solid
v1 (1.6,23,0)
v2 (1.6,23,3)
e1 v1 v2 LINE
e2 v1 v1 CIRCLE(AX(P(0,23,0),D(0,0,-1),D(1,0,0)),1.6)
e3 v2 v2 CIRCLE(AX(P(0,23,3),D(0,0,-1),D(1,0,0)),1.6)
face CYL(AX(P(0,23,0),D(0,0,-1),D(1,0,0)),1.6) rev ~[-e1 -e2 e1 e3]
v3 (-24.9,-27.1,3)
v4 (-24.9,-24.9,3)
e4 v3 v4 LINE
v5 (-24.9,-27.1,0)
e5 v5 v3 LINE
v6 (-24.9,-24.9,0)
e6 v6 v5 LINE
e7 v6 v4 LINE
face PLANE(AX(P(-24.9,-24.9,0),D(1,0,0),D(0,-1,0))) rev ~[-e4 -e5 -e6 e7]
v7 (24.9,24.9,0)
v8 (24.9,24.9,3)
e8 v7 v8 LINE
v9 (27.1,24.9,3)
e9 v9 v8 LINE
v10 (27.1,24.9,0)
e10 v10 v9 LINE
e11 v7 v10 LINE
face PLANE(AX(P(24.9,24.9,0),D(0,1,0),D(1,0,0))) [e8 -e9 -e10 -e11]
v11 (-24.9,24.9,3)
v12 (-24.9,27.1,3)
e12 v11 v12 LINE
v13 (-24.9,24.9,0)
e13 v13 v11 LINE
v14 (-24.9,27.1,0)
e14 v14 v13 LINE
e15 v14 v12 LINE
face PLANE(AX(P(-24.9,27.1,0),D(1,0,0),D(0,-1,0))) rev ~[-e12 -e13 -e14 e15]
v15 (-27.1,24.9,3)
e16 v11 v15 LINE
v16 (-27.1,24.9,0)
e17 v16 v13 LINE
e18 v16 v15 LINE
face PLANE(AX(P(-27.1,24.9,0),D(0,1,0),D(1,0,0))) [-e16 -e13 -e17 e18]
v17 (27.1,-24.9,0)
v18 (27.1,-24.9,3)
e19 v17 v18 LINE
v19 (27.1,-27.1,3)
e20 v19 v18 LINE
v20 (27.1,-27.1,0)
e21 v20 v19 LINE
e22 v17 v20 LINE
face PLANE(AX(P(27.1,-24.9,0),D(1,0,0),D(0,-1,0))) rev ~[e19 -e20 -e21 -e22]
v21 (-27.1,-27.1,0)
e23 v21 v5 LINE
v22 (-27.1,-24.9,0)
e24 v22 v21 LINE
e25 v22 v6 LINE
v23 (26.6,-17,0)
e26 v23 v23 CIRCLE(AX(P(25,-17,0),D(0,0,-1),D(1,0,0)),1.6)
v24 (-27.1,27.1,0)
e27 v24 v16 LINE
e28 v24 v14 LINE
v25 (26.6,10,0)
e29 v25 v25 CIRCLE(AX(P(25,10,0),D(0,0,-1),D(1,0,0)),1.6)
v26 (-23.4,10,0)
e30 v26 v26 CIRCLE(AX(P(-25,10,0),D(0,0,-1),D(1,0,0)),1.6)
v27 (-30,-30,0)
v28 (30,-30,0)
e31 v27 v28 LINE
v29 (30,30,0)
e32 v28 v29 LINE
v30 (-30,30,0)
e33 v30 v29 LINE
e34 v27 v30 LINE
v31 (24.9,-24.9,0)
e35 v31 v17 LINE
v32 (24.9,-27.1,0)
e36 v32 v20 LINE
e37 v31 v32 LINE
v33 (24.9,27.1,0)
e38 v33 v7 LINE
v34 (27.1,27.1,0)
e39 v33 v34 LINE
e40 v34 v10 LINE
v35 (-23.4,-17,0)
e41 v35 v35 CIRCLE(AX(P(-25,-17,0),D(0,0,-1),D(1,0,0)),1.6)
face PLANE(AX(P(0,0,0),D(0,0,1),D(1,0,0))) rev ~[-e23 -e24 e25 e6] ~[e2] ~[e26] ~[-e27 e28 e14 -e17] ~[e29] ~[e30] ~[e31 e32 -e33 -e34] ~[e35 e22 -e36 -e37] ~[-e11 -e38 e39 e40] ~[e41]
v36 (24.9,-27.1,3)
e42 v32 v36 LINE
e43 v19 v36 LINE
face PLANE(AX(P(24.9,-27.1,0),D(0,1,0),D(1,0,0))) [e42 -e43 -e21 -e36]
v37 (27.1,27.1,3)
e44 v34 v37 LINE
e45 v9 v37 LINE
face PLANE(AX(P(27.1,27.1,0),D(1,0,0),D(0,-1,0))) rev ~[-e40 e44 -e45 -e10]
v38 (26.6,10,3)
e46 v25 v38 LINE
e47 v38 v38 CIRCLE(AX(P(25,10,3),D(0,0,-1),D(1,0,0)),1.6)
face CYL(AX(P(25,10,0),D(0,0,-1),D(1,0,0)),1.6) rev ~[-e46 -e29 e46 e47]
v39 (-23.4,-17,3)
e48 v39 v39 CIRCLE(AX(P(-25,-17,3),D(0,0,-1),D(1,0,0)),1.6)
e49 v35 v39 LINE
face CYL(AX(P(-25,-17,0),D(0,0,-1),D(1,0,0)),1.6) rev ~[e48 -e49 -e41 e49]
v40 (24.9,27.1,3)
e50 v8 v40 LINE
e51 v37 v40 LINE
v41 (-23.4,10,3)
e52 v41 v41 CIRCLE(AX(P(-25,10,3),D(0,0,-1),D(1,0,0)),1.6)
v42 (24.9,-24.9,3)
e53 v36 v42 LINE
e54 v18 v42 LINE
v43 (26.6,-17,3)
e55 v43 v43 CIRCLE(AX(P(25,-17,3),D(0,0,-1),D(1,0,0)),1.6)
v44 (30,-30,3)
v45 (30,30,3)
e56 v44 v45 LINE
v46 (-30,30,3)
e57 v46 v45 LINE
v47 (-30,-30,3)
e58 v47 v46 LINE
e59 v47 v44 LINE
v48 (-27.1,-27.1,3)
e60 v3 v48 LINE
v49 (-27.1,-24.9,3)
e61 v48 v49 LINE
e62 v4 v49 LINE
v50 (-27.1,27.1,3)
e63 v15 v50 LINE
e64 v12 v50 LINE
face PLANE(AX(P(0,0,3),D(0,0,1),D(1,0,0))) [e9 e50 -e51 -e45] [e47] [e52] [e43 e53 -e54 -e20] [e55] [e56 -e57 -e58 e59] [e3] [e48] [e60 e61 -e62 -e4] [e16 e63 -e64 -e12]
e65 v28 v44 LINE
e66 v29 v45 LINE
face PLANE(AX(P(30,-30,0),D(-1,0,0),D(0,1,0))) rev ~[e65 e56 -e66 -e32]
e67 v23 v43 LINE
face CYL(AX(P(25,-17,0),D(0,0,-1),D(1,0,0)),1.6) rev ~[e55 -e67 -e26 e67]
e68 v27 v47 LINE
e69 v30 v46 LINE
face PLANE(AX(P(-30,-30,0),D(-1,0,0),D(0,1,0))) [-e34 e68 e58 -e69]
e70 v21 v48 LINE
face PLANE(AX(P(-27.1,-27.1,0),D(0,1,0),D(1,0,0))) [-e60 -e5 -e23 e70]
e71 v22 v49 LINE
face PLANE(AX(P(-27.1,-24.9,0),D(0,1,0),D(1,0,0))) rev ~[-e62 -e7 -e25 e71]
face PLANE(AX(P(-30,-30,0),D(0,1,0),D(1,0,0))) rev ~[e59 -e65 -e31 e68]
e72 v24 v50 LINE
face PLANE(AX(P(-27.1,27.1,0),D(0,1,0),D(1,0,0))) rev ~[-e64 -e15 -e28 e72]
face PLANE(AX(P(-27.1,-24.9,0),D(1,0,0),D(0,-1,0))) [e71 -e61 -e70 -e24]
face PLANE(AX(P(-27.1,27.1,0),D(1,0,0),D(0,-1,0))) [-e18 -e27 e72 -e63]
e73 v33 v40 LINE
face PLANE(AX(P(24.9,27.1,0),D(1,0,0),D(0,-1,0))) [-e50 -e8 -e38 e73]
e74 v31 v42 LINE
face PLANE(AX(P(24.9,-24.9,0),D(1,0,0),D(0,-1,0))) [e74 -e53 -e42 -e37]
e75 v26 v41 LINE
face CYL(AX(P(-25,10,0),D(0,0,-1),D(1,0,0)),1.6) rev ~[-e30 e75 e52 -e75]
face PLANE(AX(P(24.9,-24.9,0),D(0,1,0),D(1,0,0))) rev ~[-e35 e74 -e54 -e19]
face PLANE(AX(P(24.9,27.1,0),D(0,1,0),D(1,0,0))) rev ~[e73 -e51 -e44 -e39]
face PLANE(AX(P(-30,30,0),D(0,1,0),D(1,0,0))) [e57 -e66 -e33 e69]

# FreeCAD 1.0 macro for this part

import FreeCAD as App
import Part
import Sketcher
from FreeCAD import Vector
Q = App.Units.Quantity

doc = App.newDocument("Part")
body = doc.addObject("PartDesign::Body", "Body")

# Sketch on XY plane
sketch1 = doc.addObject("Sketcher::SketchObject", "Sketch")
body.addObject(sketch1)
sketch1.AttachmentSupport = (doc.XY_Plane, [""])
sketch1.MapMode = "FlatFace"
sketch1.addGeometry([
    Part.LineSegment(Vector(-30, 30, 0), Vector(-30, -30, 0)),
    Part.LineSegment(Vector(-30, -30, 0), Vector(30, -30, 0)),
    Part.LineSegment(Vector(30, -30, 0), Vector(30, 30, 0)),
    Part.LineSegment(Vector(30, 30, 0), Vector(-30, 30, 0)),
], False)
sketch1.addConstraint([
    Sketcher.Constraint("Coincident", 0, 2, 1, 1),
    Sketcher.Constraint("Coincident", 1, 2, 2, 1),
    Sketcher.Constraint("Coincident", 2, 2, 3, 1),
    Sketcher.Constraint("Coincident", 3, 2, 0, 1),
    Sketcher.Constraint("Vertical", 0),
    Sketcher.Constraint("Horizontal", 1),
    Sketcher.Constraint("Vertical", 2),
    Sketcher.Constraint("Horizontal", 3),
    Sketcher.Constraint("Symmetric", 0, 2, 2, 2, -1, 1),
    Sketcher.Constraint("Equal", 3, 0),
    Sketcher.Constraint("DistanceX", 1, 1, 1, 2, Q("60 mm")),
])
pad1 = doc.addObject("PartDesign::Pad", "Pad")
body.addObject(pad1)
pad1.Profile = sketch1
pad1.Length = 3

# Sketch on XY plane
sketch2 = doc.addObject("Sketcher::SketchObject", "Sketch001")
body.addObject(sketch2)
sketch2.AttachmentSupport = (doc.XY_Plane, [""])
sketch2.MapMode = "FlatFace"
sketch2.addGeometry([
    Part.Circle(Vector(-25, 10, 0), Vector(0, 0, 1), 1.6),  # 0
    Part.Circle(Vector(-25, -17, 0), Vector(0, 0, 1), 1.6),  # 1
    Part.Circle(Vector(25, -17, 0), Vector(0, 0, 1), 1.6),  # 2
    Part.Circle(Vector(25, 10, 0), Vector(0, 0, 1), 1.6),  # 3
    Part.Circle(Vector(0, 23, 0), Vector(0, 0, 1), 1.6),  # 4
], False)
sketch2.addConstraint([
    Sketcher.Constraint("Equal", 0, 1),
    Sketcher.Constraint("Equal", 1, 2),
    Sketcher.Constraint("Equal", 2, 3),
    Sketcher.Constraint("Equal", 3, 4),
    Sketcher.Constraint("Symmetric", 1, 3, 2, 3, -2),
    Sketcher.Constraint("Symmetric", 0, 3, 3, 3, -2),
    Sketcher.Constraint("PointOnObject", 4, 3, -2),
    Sketcher.Constraint("Vertical", 0, 3, 1, 3),
    Sketcher.Constraint("Diameter", 0, Q("3.2 mm")),
    Sketcher.Constraint("DistanceX", 0, 3, -1, 1, Q("25 mm")),
    Sketcher.Constraint("DistanceY", -1, 1, 0, 3, Q("10 mm")),
    Sketcher.Constraint("DistanceY", 1, 3, -1, 1, Q("17 mm")),
    Sketcher.Constraint("DistanceY", -1, 1, 4, 3, Q("23 mm")),
])
pocket1 = doc.addObject("PartDesign::Pocket", "Pocket")
body.addObject(pocket1)
pocket1.Profile = sketch2
pocket1.Type = "ThroughAll"
pocket1.Reversed = True

# Sketch on XY plane
sketch3 = doc.addObject("Sketcher::SketchObject", "Sketch002")
body.addObject(sketch3)
sketch3.AttachmentSupport = (doc.XY_Plane, [""])
sketch3.MapMode = "FlatFace"
sketch3.addGeometry([
    Part.LineSegment(Vector(24.9, -27.1, 0), Vector(24.9, -24.9, 0)),  # 0
    Part.LineSegment(Vector(24.9, -24.9, 0), Vector(27.1, -24.9, 0)),  # 1
    Part.LineSegment(Vector(27.1, -24.9, 0), Vector(27.1, -27.1, 0)),  # 2
    Part.LineSegment(Vector(27.1, -27.1, 0), Vector(24.9, -27.1, 0)),  # 3
    Part.LineSegment(Vector(24.9, 24.9, 0), Vector(24.9, 27.1, 0)),  # 4
    Part.LineSegment(Vector(24.9, 27.1, 0), Vector(27.1, 27.1, 0)),  # 5
    Part.LineSegment(Vector(27.1, 27.1, 0), Vector(27.1, 24.9, 0)),  # 6
    Part.LineSegment(Vector(27.1, 24.9, 0), Vector(24.9, 24.9, 0)),  # 7
    Part.LineSegment(Vector(-27.1, -27.1, 0), Vector(-27.1, -24.9, 0)),  # 8
    Part.LineSegment(Vector(-27.1, -24.9, 0), Vector(-24.9, -24.9, 0)),  # 9
    Part.LineSegment(Vector(-24.9, -24.9, 0), Vector(-24.9, -27.1, 0)),  # 10
    Part.LineSegment(Vector(-24.9, -27.1, 0), Vector(-27.1, -27.1, 0)),  # 11
    Part.LineSegment(Vector(-27.1, 24.9, 0), Vector(-27.1, 27.1, 0)),  # 12
    Part.LineSegment(Vector(-27.1, 27.1, 0), Vector(-24.9, 27.1, 0)),  # 13
    Part.LineSegment(Vector(-24.9, 27.1, 0), Vector(-24.9, 24.9, 0)),  # 14
    Part.LineSegment(Vector(-24.9, 24.9, 0), Vector(-27.1, 24.9, 0)),  # 15
], False)
sketch3.addConstraint([
    Sketcher.Constraint("Coincident", 0, 2, 1, 1),
    Sketcher.Constraint("Coincident", 1, 2, 2, 1),
    Sketcher.Constraint("Coincident", 2, 2, 3, 1),
    Sketcher.Constraint("Coincident", 3, 2, 0, 1),
    Sketcher.Constraint("Coincident", 4, 2, 5, 1),
    Sketcher.Constraint("Coincident", 5, 2, 6, 1),
    Sketcher.Constraint("Coincident", 6, 2, 7, 1),
    Sketcher.Constraint("Coincident", 7, 2, 4, 1),
    Sketcher.Constraint("Coincident", 8, 2, 9, 1),
    Sketcher.Constraint("Coincident", 9, 2, 10, 1),
    Sketcher.Constraint("Coincident", 10, 2, 11, 1),
    Sketcher.Constraint("Coincident", 11, 2, 8, 1),
    Sketcher.Constraint("Coincident", 12, 2, 13, 1),
    Sketcher.Constraint("Coincident", 13, 2, 14, 1),
    Sketcher.Constraint("Coincident", 14, 2, 15, 1),
    Sketcher.Constraint("Coincident", 15, 2, 12, 1),
    Sketcher.Constraint("Vertical", 0),
    Sketcher.Constraint("Horizontal", 1),
    Sketcher.Constraint("Vertical", 2),
    Sketcher.Constraint("Horizontal", 3),
    Sketcher.Constraint("Vertical", 4),
    Sketcher.Constraint("Horizontal", 5),
    Sketcher.Constraint("Vertical", 6),
    Sketcher.Constraint("Horizontal", 7),
    Sketcher.Constraint("Vertical", 8),
    Sketcher.Constraint("Horizontal", 9),
    Sketcher.Constraint("Vertical", 10),
    Sketcher.Constraint("Horizontal", 11),
    Sketcher.Constraint("Vertical", 12),
    Sketcher.Constraint("Horizontal", 13),
    Sketcher.Constraint("Vertical", 14),
    Sketcher.Constraint("Horizontal", 15),
    Sketcher.Constraint("Symmetric", 6, 2, 8, 2, -1, 1),
    Sketcher.Constraint("Symmetric", 4, 2, 10, 2, -1, 1),
    Sketcher.Constraint("Symmetric", 2, 2, 12, 2, -1, 1),
    Sketcher.Constraint("Symmetric", 0, 2, 14, 2, -1, 1),
    Sketcher.Constraint("Symmetric", 1, 2, 8, 2, -2),
    Sketcher.Constraint("Symmetric", 3, 2, 10, 2, -2),
    Sketcher.Constraint("Equal", 15, 0),
    Sketcher.Constraint("DistanceX", 1, 1, 1, 2, Q("2.2 mm")),
    Sketcher.Constraint("DistanceY", 0, 2, 4, 2, Q("52 mm")),
    Sketcher.Constraint("DistanceX", 8, 2, 0, 2, Q("52 mm")),
])
pocket2 = doc.addObject("PartDesign::Pocket", "Pocket001")
body.addObject(pocket2)
pocket2.Profile = sketch3
pocket2.Type = "ThroughAll"
pocket2.Reversed = True

doc.recompute()
